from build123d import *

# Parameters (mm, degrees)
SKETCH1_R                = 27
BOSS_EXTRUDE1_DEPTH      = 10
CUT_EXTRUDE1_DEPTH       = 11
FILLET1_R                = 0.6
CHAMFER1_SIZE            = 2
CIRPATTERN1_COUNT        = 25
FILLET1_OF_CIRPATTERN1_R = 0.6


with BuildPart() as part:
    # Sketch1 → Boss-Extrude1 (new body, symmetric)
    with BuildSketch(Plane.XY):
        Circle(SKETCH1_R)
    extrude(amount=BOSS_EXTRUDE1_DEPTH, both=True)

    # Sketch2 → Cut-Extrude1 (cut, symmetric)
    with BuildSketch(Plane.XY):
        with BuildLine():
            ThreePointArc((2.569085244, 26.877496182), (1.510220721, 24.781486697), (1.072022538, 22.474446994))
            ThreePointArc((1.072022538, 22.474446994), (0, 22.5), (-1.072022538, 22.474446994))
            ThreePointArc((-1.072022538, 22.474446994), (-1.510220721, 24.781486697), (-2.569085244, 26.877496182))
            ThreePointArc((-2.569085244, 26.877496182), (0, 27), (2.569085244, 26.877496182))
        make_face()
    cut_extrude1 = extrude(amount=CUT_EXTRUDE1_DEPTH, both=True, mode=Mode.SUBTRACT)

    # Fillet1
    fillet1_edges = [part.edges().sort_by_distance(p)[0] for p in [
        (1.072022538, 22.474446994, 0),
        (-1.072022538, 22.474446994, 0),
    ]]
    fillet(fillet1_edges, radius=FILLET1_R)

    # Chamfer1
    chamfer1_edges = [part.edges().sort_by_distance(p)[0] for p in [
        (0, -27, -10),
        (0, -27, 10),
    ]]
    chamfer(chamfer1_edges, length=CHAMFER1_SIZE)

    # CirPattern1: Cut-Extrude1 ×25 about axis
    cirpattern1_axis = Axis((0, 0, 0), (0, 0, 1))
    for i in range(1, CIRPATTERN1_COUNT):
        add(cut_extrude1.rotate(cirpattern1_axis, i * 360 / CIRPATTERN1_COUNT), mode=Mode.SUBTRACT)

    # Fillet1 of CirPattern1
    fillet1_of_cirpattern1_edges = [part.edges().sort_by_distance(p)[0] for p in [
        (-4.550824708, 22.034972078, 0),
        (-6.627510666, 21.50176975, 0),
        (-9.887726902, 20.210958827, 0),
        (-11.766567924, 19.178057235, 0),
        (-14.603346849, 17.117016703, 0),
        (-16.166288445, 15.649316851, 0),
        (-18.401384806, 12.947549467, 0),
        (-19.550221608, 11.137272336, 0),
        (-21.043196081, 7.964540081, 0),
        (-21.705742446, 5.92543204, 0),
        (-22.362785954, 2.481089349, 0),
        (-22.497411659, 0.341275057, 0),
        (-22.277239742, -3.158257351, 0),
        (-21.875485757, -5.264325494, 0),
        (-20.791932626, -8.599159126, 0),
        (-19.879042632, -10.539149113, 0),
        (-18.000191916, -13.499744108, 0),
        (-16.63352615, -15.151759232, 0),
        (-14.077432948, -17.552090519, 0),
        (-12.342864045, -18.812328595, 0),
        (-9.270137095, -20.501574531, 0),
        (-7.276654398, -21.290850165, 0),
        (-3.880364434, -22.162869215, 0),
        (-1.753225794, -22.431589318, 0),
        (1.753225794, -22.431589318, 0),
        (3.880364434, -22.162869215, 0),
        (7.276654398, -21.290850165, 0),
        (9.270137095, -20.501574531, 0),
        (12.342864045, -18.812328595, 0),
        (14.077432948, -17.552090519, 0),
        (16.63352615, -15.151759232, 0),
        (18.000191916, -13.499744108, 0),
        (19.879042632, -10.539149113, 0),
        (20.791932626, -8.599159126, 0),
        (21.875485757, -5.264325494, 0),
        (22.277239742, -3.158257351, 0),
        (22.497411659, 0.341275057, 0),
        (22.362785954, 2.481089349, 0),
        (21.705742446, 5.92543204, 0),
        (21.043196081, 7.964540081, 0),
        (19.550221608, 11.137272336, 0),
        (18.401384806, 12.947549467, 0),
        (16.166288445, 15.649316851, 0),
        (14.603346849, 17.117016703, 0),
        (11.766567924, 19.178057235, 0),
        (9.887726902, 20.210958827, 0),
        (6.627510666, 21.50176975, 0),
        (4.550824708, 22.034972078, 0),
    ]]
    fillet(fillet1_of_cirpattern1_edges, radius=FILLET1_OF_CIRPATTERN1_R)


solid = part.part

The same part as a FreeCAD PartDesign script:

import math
import FreeCAD as App
import Part
import Sketcher
Q = App.Units.Quantity


def edges_at(feature, points):
    """Names of the edges that pass closest to the given points."""
    edges = feature.Shape.Edges
    near = lambda p: min(range(len(edges)), key=lambda i: edges[i].distToShape(Part.Vertex(*p))[0])
    return sorted({f"Edge{near(p) + 1}" for p in points})

doc = App.newDocument("Part")
params = doc.addObject("Spreadsheet::Sheet", "Params")
for row, (alias, value) in enumerate([
    ("sketch1_diameter", "54 mm"),
    ("pad1_length", "20 mm"),
    ("sketch2_radius", "27 mm"),
    ("sketch2_radius2", "22.5 mm"),
    ("pocket1_length", "22 mm"),
    ("fillet_radius", "0.6 mm"),
    ("chamfer_size", "2 mm"),
    ("fillet2_radius", "0.6 mm"),
], start=1):
    params.set(f"A{row}", alias)
    params.set(f"B{row}", "=" + value)
    params.setAlias(f"B{row}", alias)

body = doc.addObject("PartDesign::Body", "Body")

sketch1 = doc.addObject("Sketcher::SketchObject", "Sketch")
body.addObject(sketch1)
sketch1.AttachmentSupport = (doc.XY_Plane, [""])
sketch1.MapMode = "FlatFace"
sketch1.addGeometry(Part.Circle(App.Vector(0, 0, 0), App.Vector(0, 0, 1), 27), False)
sketch1.addConstraint(Sketcher.Constraint("Coincident", 0, 3, -1, 1))
sketch1.addConstraint(Sketcher.Constraint("Diameter", 0, Q("54 mm")))
sketch1.setExpression("Constraints[1]", "Params.sketch1_diameter")
pad1 = doc.addObject("PartDesign::Pad", "Pad")
body.addObject(pad1)
pad1.Profile = sketch1
pad1.setExpression("Length", "Params.pad1_length")
pad1.Midplane = True

sketch2 = doc.addObject("Sketcher::SketchObject", "Sketch001")
body.addObject(sketch2)
sketch2.AttachmentSupport = (doc.XY_Plane, [""])
sketch2.MapMode = "FlatFace"
sketch2.addGeometry(Part.ArcOfCircle(Part.Circle(App.Vector(9.5, 22.1, 0), App.Vector(0, 0, 1), 8.4), math.radians(145), math.radians(177)), False)
sketch2.addGeometry(Part.ArcOfCircle(Part.Circle(App.Vector(0, 0, 0), App.Vector(0, 0, 1), 27), math.radians(84.54), math.radians(95.46)), False)
sketch2.addGeometry(Part.ArcOfCircle(Part.Circle(App.Vector(-9.5, 22.1, 0), App.Vector(0, 0, 1), 8.4), math.radians(3), math.radians(35)), False)
sketch2.addGeometry(Part.ArcOfCircle(Part.Circle(App.Vector(0, 0, 0), App.Vector(0, 0, 1), 22.5), math.radians(87.27), math.radians(92.73)), False)
sketch2.addConstraint(Sketcher.Constraint("Coincident", 0, 1, 1, 1))
sketch2.addConstraint(Sketcher.Constraint("Coincident", 1, 2, 2, 2))
sketch2.addConstraint(Sketcher.Constraint("Coincident", 2, 1, 3, 2))
sketch2.addConstraint(Sketcher.Constraint("Coincident", 3, 1, 0, 2))
sketch2.addConstraint(Sketcher.Constraint("Coincident", 1, 3, -1, 1))
sketch2.addConstraint(Sketcher.Constraint("Coincident", 3, 3, -1, 1))
sketch2.addConstraint(Sketcher.Constraint("Equal", 0, 2))
sketch2.addConstraint(Sketcher.Constraint("Symmetric", 0, 3, 2, 3, -2))
sketch2.addConstraint(Sketcher.Constraint("Radius", 1, Q("27 mm")))
sketch2.addConstraint(Sketcher.Constraint("Radius", 3, Q("22.5 mm")))
sketch2.addConstraint(Sketcher.Constraint("Radius", 0, Q("8.4118 mm")))
sketch2.addConstraint(Sketcher.Constraint("DistanceX", -1, 1, 0, 3, Q("9.47427 mm")))
sketch2.addConstraint(Sketcher.Constraint("DistanceX", 1, 2, 0, 1, Q("5.13817 mm")))
sketch2.setExpression("Constraints[8]", "Params.sketch2_radius")
sketch2.setExpression("Constraints[9]", "Params.sketch2_radius2")
pocket1 = doc.addObject("PartDesign::Pocket", "Pocket")
body.addObject(pocket1)
pocket1.Profile = sketch2
pocket1.setExpression("Length", "Params.pocket1_length")
pocket1.Midplane = True
doc.recompute()

fillet = doc.addObject("PartDesign::Fillet", "Fillet")
body.addObject(fillet)
fillet.Base = (pocket1, edges_at(pocket1, [(1.072, 22.474, 0), (-1.072, 22.474, 0)]))
fillet.setExpression("Radius", "Params.fillet_radius")
doc.recompute()

chamfer = doc.addObject("PartDesign::Chamfer", "Chamfer")
body.addObject(chamfer)
chamfer.Base = (fillet, edges_at(fillet, [(0, -27, -10), (0, -27, 10)]))
chamfer.setExpression("Size", "Params.chamfer_size")
doc.recompute()

polarpattern = doc.addObject("PartDesign::PolarPattern", "PolarPattern")
body.addObject(polarpattern)
polarpattern.Originals = [pocket1]
polarpattern.Axis = (doc.Z_Axis, [""])
polarpattern.Angle = 360
polarpattern.Occurrences = 25
body.Tip = polarpattern
doc.recompute()

fillet2 = doc.addObject("PartDesign::Fillet", "Fillet001")
body.addObject(fillet2)
fillet2.Base = (polarpattern, edges_at(polarpattern, [
    (-4.551, 22.035, 0),
    (-6.628, 21.502, 0),
    (-9.888, 20.211, 0),
    (-11.767, 19.178, 0),
    (-14.603, 17.117, 0),
    (-16.166, 15.649, 0),
    (-18.401, 12.948, 0),
    (-19.55, 11.137, 0),
    (-21.043, 7.965, 0),
    (-21.706, 5.925, 0),
    (-22.363, 2.481, 0),
    (-22.497, 0.341, 0),
    (-22.277, -3.158, 0),
    (-21.875, -5.264, 0),
    (-20.792, -8.599, 0),
    (-19.879, -10.539, 0),
    (-18, -13.5, 0),
    (-16.634, -15.152, 0),
    (-14.077, -17.552, 0),
    (-12.343, -18.812, 0),
    (-9.27, -20.502, 0),
    (-7.277, -21.291, 0),
    (-3.88, -22.163, 0),
    (-1.753, -22.432, 0),
    (1.753, -22.432, 0),
    (3.88, -22.163, 0),
    (7.277, -21.291, 0),
    (9.27, -20.502, 0),
    (12.343, -18.812, 0),
    (14.077, -17.552, 0),
    (16.634, -15.152, 0),
    (18, -13.5, 0),
    (19.879, -10.539, 0),
    (20.792, -8.599, 0),
    (21.875, -5.264, 0),
    (22.277, -3.158, 0),
    (22.497, 0.341, 0),
    (22.363, 2.481, 0),
    (21.706, 5.925, 0),
    (21.043, 7.965, 0),
    (19.55, 11.137, 0),
    (18.401, 12.948, 0),
    (16.166, 15.649, 0),
    (14.603, 17.117, 0),
    (11.767, 19.178, 0),
    (9.888, 20.211, 0),
    (6.628, 21.502, 0),
    (4.551, 22.035, 0),
]))
fillet2.setExpression("Radius", "Params.fillet2_radius")

doc.recompute()
